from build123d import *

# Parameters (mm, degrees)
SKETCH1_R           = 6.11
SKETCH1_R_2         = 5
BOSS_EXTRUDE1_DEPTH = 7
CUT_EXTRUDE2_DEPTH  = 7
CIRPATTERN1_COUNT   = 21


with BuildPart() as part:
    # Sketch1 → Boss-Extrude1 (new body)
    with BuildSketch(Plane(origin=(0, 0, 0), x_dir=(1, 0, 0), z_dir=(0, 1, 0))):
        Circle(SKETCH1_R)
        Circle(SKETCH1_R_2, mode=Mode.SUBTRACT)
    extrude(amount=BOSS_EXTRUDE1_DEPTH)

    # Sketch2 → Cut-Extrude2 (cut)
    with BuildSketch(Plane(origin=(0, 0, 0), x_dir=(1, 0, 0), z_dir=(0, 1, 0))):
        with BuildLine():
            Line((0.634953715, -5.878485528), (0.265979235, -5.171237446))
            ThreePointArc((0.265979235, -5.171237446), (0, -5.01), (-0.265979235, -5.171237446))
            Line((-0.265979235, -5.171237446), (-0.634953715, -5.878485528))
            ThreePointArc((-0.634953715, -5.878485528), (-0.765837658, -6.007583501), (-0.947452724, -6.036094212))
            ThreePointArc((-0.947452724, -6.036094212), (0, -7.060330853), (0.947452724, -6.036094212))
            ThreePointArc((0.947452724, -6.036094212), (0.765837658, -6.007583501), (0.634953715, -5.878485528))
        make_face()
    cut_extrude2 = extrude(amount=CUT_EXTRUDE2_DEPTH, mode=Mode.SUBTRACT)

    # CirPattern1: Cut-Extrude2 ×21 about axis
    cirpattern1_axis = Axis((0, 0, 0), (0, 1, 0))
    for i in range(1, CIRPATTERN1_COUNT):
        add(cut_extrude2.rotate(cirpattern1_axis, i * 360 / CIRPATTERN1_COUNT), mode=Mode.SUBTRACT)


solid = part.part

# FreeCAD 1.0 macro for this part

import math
import FreeCAD as App
import Part
import Sketcher

doc = App.newDocument("Part")
body = doc.addObject("PartDesign::Body", "Body")

# Sketch on XZ plane
sketch1 = body.newObject("Sketcher::SketchObject", "Sketch")
sketch1.AttachmentSupport = (doc.getObject("XZ_Plane"), [""])
sketch1.MapMode = "FlatFace"
sketch1.addGeometry(Part.Circle(App.Vector(0, 0, 0), App.Vector(0, 0, 1), 6.11), False)
sketch1.addGeometry(Part.Circle(App.Vector(0, 0, 0), App.Vector(0, 0, 1), 5), False)
sketch1.addConstraint(Sketcher.Constraint("Coincident", 0, 3, -1, 1))
sketch1.addConstraint(Sketcher.Constraint("Coincident", 1, 3, -1, 1))
sketch1.addConstraint(Sketcher.Constraint("Diameter", 1, 10.0))
sketch1.addConstraint(Sketcher.Constraint("Diameter", 0, 12.22))
pad1 = body.newObject("PartDesign::Pad", "Pad")
pad1.Profile = sketch1
pad1.Length = 7
pad1.Reversed = True

# Sketch on XZ plane
sketch2 = body.newObject("Sketcher::SketchObject", "Sketch001")
sketch2.AttachmentSupport = (doc.getObject("XZ_Plane"), [""])
sketch2.MapMode = "FlatFace"
sketch2.addGeometry(Part.LineSegment(App.Vector(0.634954, 5.878486, 0), App.Vector(0.265979, 5.171237, 0)), False)
sketch2.addGeometry(Part.ArcOfCircle(Part.Circle(App.Vector(0, 5.31, 0), App.Vector(0, 0, 1), 0.3), math.radians(-152.44875), math.radians(-27.55125)), False)
sketch2.addGeometry(Part.LineSegment(App.Vector(-0.265979, 5.171237, 0), App.Vector(-0.634954, 5.878486, 0)), False)
sketch2.addGeometry(Part.ArcOfCircle(Part.Circle(App.Vector(-0.900933, 5.739723, 0), App.Vector(0, 0, 1), 0.3), math.radians(27.55125), math.radians(98.920619)), False)
sketch2.addGeometry(Part.ArcOfCircle(Part.Circle(App.Vector(0, 6.11, 0), App.Vector(0, 0, 1), 0.950331), math.radians(-4.460309), math.radians(184.460309)), False)
sketch2.addGeometry(Part.ArcOfCircle(Part.Circle(App.Vector(0.900933, 5.739723, 0), App.Vector(0, 0, 1), 0.3), math.radians(81.079381), math.radians(152.44875)), False)
sketch2.addConstraint(Sketcher.Constraint("Tangent", 0, 2, 1, 2))
sketch2.addConstraint(Sketcher.Constraint("Tangent", 1, 1, 2, 1))
sketch2.addConstraint(Sketcher.Constraint("Tangent", 2, 2, 3, 1))
sketch2.addConstraint(Sketcher.Constraint("Coincident", 3, 2, 4, 2))
sketch2.addConstraint(Sketcher.Constraint("Coincident", 4, 1, 5, 1))
sketch2.addConstraint(Sketcher.Constraint("Tangent", 5, 2, 0, 1))
sketch2.addConstraint(Sketcher.Constraint("Equal", 1, 3))
sketch2.addConstraint(Sketcher.Constraint("Equal", 3, 5))
sketch2.addConstraint(Sketcher.Constraint("Symmetric", 3, 3, 5, 3, -2))
sketch2.addConstraint(Sketcher.Constraint("PointOnObject", 1, 3, -2))
sketch2.addConstraint(Sketcher.Constraint("PointOnObject", 4, 3, -2))
sketch2.addConstraint(Sketcher.Constraint("Radius", 1, 0.3))
sketch2.addConstraint(Sketcher.Constraint("DistanceY", 1, 3, 4, 3, 0.8))
sketch2.addConstraint(Sketcher.Constraint("DistanceY", -1, 1, 1, 3, 5.31))
sketch2.addConstraint(Sketcher.Constraint("Radius", 4, 0.950331))
sketch2.addConstraint(Sketcher.Constraint("DistanceX", 3, 2, 2, 2, 0.312499))
sketch2.addConstraint(Sketcher.Constraint("Distance", 0, 0.79771))
pocket1 = body.newObject("PartDesign::Pocket", "Pocket")
pocket1.Profile = sketch2
pocket1.Length = 7
doc.recompute()

polarpattern = body.newObject("PartDesign::PolarPattern", "PolarPattern")
polarpattern.Originals = [pocket1]
polarpattern.Axis = (doc.getObject("Y_Axis"), [""])
polarpattern.Angle = 360
polarpattern.Occurrences = 21
body.Tip = polarpattern

doc.recompute()
